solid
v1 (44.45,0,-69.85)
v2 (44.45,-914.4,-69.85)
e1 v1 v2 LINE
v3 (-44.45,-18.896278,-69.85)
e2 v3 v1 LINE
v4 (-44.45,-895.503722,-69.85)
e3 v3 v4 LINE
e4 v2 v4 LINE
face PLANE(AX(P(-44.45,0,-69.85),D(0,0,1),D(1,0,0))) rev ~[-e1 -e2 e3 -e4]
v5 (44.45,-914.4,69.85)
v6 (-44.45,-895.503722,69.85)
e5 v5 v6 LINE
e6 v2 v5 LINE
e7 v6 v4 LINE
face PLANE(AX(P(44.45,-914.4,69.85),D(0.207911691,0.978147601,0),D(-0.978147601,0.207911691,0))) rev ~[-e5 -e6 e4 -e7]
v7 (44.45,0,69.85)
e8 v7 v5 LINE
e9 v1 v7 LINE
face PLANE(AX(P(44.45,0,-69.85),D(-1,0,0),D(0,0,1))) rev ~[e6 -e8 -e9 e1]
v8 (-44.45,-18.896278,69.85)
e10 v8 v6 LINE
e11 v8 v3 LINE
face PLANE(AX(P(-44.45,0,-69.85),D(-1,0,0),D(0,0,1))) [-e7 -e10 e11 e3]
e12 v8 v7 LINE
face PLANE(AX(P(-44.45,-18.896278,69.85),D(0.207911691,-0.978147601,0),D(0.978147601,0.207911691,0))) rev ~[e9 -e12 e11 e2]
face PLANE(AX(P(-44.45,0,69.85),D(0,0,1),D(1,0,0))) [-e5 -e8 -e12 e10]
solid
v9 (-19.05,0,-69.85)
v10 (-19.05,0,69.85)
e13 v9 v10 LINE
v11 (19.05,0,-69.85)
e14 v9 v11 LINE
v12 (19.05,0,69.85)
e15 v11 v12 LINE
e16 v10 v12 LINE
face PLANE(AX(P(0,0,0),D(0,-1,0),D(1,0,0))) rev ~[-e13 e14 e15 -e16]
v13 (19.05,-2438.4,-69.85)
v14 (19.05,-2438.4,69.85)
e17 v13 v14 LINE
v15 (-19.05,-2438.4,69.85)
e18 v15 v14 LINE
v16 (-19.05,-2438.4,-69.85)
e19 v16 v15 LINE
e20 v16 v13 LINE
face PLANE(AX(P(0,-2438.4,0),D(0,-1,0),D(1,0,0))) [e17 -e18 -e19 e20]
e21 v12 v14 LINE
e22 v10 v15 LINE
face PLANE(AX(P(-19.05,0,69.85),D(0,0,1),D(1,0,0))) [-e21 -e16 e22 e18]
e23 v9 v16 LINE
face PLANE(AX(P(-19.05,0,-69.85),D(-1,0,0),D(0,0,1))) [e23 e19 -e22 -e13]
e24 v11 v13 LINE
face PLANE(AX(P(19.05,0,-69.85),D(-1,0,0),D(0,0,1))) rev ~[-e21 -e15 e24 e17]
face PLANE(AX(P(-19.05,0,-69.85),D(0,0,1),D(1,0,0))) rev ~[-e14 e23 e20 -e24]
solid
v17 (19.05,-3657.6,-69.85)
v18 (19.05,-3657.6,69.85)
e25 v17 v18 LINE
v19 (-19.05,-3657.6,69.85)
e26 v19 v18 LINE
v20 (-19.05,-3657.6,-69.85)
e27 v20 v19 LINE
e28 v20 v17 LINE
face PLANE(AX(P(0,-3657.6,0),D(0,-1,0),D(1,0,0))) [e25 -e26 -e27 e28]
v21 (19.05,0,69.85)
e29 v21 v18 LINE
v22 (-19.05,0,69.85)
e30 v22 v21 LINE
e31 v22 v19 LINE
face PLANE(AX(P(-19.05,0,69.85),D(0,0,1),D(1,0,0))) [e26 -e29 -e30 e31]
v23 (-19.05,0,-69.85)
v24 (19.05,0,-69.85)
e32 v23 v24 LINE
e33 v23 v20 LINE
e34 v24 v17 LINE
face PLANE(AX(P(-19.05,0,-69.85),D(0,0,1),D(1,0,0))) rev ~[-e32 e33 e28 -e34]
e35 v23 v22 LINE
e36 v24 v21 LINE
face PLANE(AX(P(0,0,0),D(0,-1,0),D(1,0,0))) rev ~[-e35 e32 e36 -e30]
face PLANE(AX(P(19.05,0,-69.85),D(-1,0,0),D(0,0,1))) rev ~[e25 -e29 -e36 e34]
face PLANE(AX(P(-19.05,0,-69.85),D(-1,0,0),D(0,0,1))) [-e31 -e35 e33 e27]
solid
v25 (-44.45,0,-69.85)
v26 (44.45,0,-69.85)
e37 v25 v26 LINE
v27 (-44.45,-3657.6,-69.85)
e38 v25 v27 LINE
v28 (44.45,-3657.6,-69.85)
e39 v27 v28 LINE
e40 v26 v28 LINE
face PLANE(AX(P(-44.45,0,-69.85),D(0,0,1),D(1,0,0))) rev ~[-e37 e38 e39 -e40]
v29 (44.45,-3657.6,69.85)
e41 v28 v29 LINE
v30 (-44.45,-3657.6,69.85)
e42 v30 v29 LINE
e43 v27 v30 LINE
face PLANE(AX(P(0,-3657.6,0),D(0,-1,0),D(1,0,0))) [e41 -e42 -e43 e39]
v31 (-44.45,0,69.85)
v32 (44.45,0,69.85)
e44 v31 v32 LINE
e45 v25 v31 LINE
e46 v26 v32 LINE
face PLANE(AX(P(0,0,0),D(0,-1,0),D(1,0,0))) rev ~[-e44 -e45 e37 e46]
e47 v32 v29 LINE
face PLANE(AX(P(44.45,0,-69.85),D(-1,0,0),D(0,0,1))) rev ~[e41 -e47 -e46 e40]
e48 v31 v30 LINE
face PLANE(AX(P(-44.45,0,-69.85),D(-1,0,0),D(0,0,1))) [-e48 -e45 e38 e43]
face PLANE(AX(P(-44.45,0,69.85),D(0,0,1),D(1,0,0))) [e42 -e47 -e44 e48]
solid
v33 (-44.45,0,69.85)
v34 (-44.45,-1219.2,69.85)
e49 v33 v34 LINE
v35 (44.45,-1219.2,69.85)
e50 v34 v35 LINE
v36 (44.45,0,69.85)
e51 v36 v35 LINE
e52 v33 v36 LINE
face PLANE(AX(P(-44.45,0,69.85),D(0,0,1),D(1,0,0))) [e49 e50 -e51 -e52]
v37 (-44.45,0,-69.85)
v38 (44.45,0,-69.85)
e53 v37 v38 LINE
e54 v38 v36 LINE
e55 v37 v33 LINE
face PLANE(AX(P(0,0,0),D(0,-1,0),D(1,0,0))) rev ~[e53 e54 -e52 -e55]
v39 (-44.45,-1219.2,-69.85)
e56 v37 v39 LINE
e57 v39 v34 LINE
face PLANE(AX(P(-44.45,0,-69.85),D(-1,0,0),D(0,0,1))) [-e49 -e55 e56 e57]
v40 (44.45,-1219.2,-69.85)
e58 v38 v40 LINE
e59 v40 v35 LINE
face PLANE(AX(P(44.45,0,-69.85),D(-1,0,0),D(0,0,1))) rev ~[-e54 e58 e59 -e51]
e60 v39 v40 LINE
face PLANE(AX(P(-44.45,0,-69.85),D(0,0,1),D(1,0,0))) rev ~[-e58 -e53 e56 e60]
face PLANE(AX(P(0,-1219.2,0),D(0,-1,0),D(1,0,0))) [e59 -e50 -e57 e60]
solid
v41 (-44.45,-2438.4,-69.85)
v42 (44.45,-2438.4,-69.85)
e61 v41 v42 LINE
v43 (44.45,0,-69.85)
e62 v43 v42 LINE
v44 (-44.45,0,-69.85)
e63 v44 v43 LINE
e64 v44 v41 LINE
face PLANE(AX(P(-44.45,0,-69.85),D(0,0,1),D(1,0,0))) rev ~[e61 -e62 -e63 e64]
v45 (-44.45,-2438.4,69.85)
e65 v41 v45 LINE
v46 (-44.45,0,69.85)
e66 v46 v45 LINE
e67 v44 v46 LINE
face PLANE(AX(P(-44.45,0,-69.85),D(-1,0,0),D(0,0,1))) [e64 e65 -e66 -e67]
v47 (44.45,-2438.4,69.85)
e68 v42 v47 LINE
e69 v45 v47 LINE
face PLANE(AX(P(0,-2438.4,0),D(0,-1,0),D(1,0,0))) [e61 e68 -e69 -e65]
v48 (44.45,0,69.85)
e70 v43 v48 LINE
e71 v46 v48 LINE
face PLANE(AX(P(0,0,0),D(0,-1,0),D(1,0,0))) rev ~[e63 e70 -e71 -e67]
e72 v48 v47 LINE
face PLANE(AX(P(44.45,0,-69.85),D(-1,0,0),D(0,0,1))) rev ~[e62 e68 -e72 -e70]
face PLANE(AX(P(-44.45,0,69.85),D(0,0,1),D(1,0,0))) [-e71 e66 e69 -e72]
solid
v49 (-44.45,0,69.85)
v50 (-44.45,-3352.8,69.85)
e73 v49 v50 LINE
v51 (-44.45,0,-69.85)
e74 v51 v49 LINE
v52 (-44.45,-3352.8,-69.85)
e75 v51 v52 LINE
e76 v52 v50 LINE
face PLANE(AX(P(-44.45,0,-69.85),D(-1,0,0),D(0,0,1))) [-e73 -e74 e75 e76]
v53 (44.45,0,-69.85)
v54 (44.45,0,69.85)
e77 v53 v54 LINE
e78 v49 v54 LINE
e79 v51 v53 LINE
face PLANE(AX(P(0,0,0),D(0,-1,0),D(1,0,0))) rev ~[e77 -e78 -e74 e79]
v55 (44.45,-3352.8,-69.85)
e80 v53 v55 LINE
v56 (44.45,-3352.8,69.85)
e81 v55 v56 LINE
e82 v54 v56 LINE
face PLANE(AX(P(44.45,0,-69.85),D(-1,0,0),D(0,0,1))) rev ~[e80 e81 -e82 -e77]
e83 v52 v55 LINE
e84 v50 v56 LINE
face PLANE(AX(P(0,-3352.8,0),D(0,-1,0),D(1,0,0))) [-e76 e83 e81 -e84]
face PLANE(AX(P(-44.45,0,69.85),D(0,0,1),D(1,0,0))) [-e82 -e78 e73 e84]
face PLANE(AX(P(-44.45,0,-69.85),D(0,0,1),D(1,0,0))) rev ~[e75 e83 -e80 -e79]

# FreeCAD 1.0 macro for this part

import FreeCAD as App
import Part
import Sketcher
from FreeCAD import Vector
Q = App.Units.Quantity


def add_polygon(sketch, points):
    """Adds a closed chain of lines whose ends are joined by coincident constraints."""
    first, n = sketch.GeometryCount, len(points)
    for a, b in zip(points, points[1:] + points[:1]):
        sketch.addGeometry(Part.LineSegment(App.Vector(*a, 0), App.Vector(*b, 0)), False)
    for i in range(n):
        sketch.addConstraint(Sketcher.Constraint("Coincident", first + i, 2, first + (i + 1) % n, 1))

doc = App.newDocument("Part")
body = doc.addObject("PartDesign::Body", "Body")

# Sketch on XZ plane
sketch1 = doc.addObject("Sketcher::SketchObject", "Sketch")
body.addObject(sketch1)
sketch1.AttachmentSupport = (doc.XZ_Plane, [""])
sketch1.MapMode = "FlatFace"
add_polygon(sketch1, [(-44, 70), (-44, -70), (44, -70), (44, 70)])  # lines 0-3
sketch1.addConstraint(Sketcher.Constraint("Vertical", 0))
sketch1.addConstraint(Sketcher.Constraint("Horizontal", 1))
sketch1.addConstraint(Sketcher.Constraint("Vertical", 2))
sketch1.addConstraint(Sketcher.Constraint("Horizontal", 3))
sketch1.addConstraint(Sketcher.Constraint("Symmetric", 0, 2, 2, 2, -1, 1))
sketch1.addConstraint(Sketcher.Constraint("DistanceX", 1, 1, 1, 2, Q("3.5 in")))
sketch1.addConstraint(Sketcher.Constraint("DistanceY", 0, 2, 0, 1, Q("5.5 in")))
pad1 = doc.addObject("PartDesign::Pad", "Pad")
body.addObject(pad1)
pad1.Profile = sketch1
pad1.Length = Q("48 in")
body2 = doc.addObject("PartDesign::Body", "Body001")

# Sketch on XZ plane
sketch2 = doc.addObject("Sketcher::SketchObject", "Sketch001")
body2.addObject(sketch2)
sketch2.AttachmentSupport = (doc.getObject("XZ_Plane001"), [""])
sketch2.MapMode = "FlatFace"
add_polygon(sketch2, [(-44, 70), (-44, -70), (44, -70), (44, 70)])  # lines 0-3
sketch2.addConstraint(Sketcher.Constraint("Vertical", 0))
sketch2.addConstraint(Sketcher.Constraint("Horizontal", 1))
sketch2.addConstraint(Sketcher.Constraint("Vertical", 2))
sketch2.addConstraint(Sketcher.Constraint("Horizontal", 3))
sketch2.addConstraint(Sketcher.Constraint("Symmetric", 0, 2, 2, 2, -1, 1))
sketch2.addConstraint(Sketcher.Constraint("DistanceX", 1, 1, 1, 2, Q("3.5 in")))
sketch2.addConstraint(Sketcher.Constraint("DistanceY", 0, 2, 0, 1, Q("5.5 in")))
pad2 = doc.addObject("PartDesign::Pad", "Pad001")
body2.addObject(pad2)
pad2.Profile = sketch2
pad2.Length = Q("96 in")
body3 = doc.addObject("PartDesign::Body", "Body002")

# Sketch on XZ plane
sketch3 = doc.addObject("Sketcher::SketchObject", "Sketch002")
body3.addObject(sketch3)
sketch3.AttachmentSupport = (doc.getObject("XZ_Plane002"), [""])
sketch3.MapMode = "FlatFace"
add_polygon(sketch3, [(-44, 70), (-44, -70), (44, -70), (44, 70)])  # lines 0-3
sketch3.addConstraint(Sketcher.Constraint("Vertical", 0))
sketch3.addConstraint(Sketcher.Constraint("Horizontal", 1))
sketch3.addConstraint(Sketcher.Constraint("Vertical", 2))
sketch3.addConstraint(Sketcher.Constraint("Horizontal", 3))
sketch3.addConstraint(Sketcher.Constraint("Symmetric", 0, 2, 2, 2, -1, 1))
sketch3.addConstraint(Sketcher.Constraint("DistanceX", 1, 1, 1, 2, Q("3.5 in")))
sketch3.addConstraint(Sketcher.Constraint("DistanceY", 0, 2, 0, 1, Q("5.5 in")))
pad3 = doc.addObject("PartDesign::Pad", "Pad002")
body3.addObject(pad3)
pad3.Profile = sketch3
pad3.Length = Q("132 in")
body4 = doc.addObject("PartDesign::Body", "Body003")

# Sketch on XZ plane
sketch4 = doc.addObject("Sketcher::SketchObject", "Sketch003")
body4.addObject(sketch4)
sketch4.AttachmentSupport = (doc.getObject("XZ_Plane003"), [""])
sketch4.MapMode = "FlatFace"
add_polygon(sketch4, [(-44, 70), (-44, -70), (44, -70), (44, 70)])  # lines 0-3
sketch4.addConstraint(Sketcher.Constraint("Vertical", 0))
sketch4.addConstraint(Sketcher.Constraint("Horizontal", 1))
sketch4.addConstraint(Sketcher.Constraint("Vertical", 2))
sketch4.addConstraint(Sketcher.Constraint("Horizontal", 3))
sketch4.addConstraint(Sketcher.Constraint("Symmetric", 0, 2, 2, 2, -1, 1))
sketch4.addConstraint(Sketcher.Constraint("DistanceX", 1, 1, 1, 2, Q("3.5 in")))
sketch4.addConstraint(Sketcher.Constraint("DistanceY", 0, 2, 0, 1, Q("5.5 in")))
pad4 = doc.addObject("PartDesign::Pad", "Pad003")
body4.addObject(pad4)
pad4.Profile = sketch4
pad4.Length = Q("144 in")
body5 = doc.addObject("PartDesign::Body", "Body004")

# Sketch on XZ plane
sketch5 = doc.addObject("Sketcher::SketchObject", "Sketch004")
body5.addObject(sketch5)
sketch5.AttachmentSupport = (doc.getObject("XZ_Plane004"), [""])
sketch5.MapMode = "FlatFace"
add_polygon(sketch5, [(-19, 70), (-19, -70), (19, -70), (19, 70)])  # lines 0-3
sketch5.addConstraint(Sketcher.Constraint("Vertical", 0))
sketch5.addConstraint(Sketcher.Constraint("Horizontal", 1))
sketch5.addConstraint(Sketcher.Constraint("Vertical", 2))
sketch5.addConstraint(Sketcher.Constraint("Horizontal", 3))
sketch5.addConstraint(Sketcher.Constraint("Symmetric", 0, 2, 2, 2, -1, 1))
sketch5.addConstraint(Sketcher.Constraint("DistanceX", 1, 1, 1, 2, Q("1.5 in")))
sketch5.addConstraint(Sketcher.Constraint("DistanceY", 0, 2, 0, 1, Q("5.5 in")))
pad5 = doc.addObject("PartDesign::Pad", "Pad004")
body5.addObject(pad5)
pad5.Profile = sketch5
pad5.Length = Q("96 in")
body6 = doc.addObject("PartDesign::Body", "Body005")

# Sketch on XZ plane
sketch6 = doc.addObject("Sketcher::SketchObject", "Sketch005")
body6.addObject(sketch6)
sketch6.AttachmentSupport = (doc.getObject("XZ_Plane005"), [""])
sketch6.MapMode = "FlatFace"
add_polygon(sketch6, [(-19, 70), (-19, -70), (19, -70), (19, 70)])  # lines 0-3
sketch6.addConstraint(Sketcher.Constraint("Vertical", 0))
sketch6.addConstraint(Sketcher.Constraint("Horizontal", 1))
sketch6.addConstraint(Sketcher.Constraint("Vertical", 2))
sketch6.addConstraint(Sketcher.Constraint("Horizontal", 3))
sketch6.addConstraint(Sketcher.Constraint("Symmetric", 0, 2, 2, 2, -1, 1))
sketch6.addConstraint(Sketcher.Constraint("DistanceX", 1, 1, 1, 2, Q("1.5 in")))
sketch6.addConstraint(Sketcher.Constraint("DistanceY", 0, 2, 0, 1, Q("5.5 in")))
pad6 = doc.addObject("PartDesign::Pad", "Pad005")
body6.addObject(pad6)
pad6.Profile = sketch6
pad6.Length = Q("144 in")
body7 = doc.addObject("PartDesign::Body", "Body006")

# Sketch on XZ plane
sketch7 = doc.addObject("Sketcher::SketchObject", "Sketch006")
body7.addObject(sketch7)
sketch7.AttachmentSupport = (doc.getObject("XZ_Plane006"), [""])
sketch7.MapMode = "FlatFace"
add_polygon(sketch7, [(-44, 70), (-44, -70), (44, -70), (44, 70)])  # lines 0-3
sketch7.addConstraint(Sketcher.Constraint("Vertical", 0))
sketch7.addConstraint(Sketcher.Constraint("Horizontal", 1))
sketch7.addConstraint(Sketcher.Constraint("Vertical", 2))
sketch7.addConstraint(Sketcher.Constraint("Horizontal", 3))
sketch7.addConstraint(Sketcher.Constraint("Symmetric", 0, 2, 2, 2, -1, 1))
sketch7.addConstraint(Sketcher.Constraint("DistanceX", 1, 1, 1, 2, Q("3.5 in")))
sketch7.addConstraint(Sketcher.Constraint("DistanceY", 0, 2, 0, 1, Q("5.5 in")))
pad7 = doc.addObject("PartDesign::Pad", "Pad006")
body7.addObject(pad7)
pad7.Profile = sketch7
pad7.Length = Q("36 in")

# Sketch on XY plane
sketch8 = doc.addObject("Sketcher::SketchObject", "Sketch007")
body7.addObject(sketch8)
sketch8.AttachmentSupport = (doc.getObject("XY_Plane006"), [""])
sketch8.MapMode = "FlatFace"
sketch8.AttachmentOffset = App.Placement(Vector(0, 0, 2.75 * 25.4), App.Rotation())
add_polygon(sketch8, [(-44, -19), (44, 0), (-44, 0)])  # lines 0-2
add_polygon(sketch8, [(-44, -896), (-44, -914), (44, -914)])  # lines 3-5
sketch8.addConstraint(Sketcher.Constraint("Horizontal", 1))
sketch8.addConstraint(Sketcher.Constraint("Vertical", 2))
sketch8.addConstraint(Sketcher.Constraint("Vertical", 3))
sketch8.addConstraint(Sketcher.Constraint("Horizontal", 4))
sketch8.addConstraint(Sketcher.Constraint("Symmetric", 0, 2, 1, 2, -1, 1))
sketch8.addConstraint(Sketcher.Constraint("Vertical", 2, 2, 3, 2))
sketch8.addConstraint(Sketcher.Constraint("Vertical", 0, 2, 4, 2))
sketch8.addConstraint(Sketcher.Constraint("Equal", 2, 3))
sketch8.addConstraint(Sketcher.Constraint("DistanceX", 1, 2, 1, 1, Q("3.5 in")))
sketch8.addConstraint(Sketcher.Constraint("DistanceY", 3, 2, -1, 1, Q("36 in")))
sketch8.addConstraint(Sketcher.Constraint("Angle", 0, Q("12 deg")))
pocket1 = doc.addObject("PartDesign::Pocket", "Pocket")
body7.addObject(pocket1)
pocket1.Profile = sketch8
pocket1.Type = "ThroughAll"

doc.recompute()
